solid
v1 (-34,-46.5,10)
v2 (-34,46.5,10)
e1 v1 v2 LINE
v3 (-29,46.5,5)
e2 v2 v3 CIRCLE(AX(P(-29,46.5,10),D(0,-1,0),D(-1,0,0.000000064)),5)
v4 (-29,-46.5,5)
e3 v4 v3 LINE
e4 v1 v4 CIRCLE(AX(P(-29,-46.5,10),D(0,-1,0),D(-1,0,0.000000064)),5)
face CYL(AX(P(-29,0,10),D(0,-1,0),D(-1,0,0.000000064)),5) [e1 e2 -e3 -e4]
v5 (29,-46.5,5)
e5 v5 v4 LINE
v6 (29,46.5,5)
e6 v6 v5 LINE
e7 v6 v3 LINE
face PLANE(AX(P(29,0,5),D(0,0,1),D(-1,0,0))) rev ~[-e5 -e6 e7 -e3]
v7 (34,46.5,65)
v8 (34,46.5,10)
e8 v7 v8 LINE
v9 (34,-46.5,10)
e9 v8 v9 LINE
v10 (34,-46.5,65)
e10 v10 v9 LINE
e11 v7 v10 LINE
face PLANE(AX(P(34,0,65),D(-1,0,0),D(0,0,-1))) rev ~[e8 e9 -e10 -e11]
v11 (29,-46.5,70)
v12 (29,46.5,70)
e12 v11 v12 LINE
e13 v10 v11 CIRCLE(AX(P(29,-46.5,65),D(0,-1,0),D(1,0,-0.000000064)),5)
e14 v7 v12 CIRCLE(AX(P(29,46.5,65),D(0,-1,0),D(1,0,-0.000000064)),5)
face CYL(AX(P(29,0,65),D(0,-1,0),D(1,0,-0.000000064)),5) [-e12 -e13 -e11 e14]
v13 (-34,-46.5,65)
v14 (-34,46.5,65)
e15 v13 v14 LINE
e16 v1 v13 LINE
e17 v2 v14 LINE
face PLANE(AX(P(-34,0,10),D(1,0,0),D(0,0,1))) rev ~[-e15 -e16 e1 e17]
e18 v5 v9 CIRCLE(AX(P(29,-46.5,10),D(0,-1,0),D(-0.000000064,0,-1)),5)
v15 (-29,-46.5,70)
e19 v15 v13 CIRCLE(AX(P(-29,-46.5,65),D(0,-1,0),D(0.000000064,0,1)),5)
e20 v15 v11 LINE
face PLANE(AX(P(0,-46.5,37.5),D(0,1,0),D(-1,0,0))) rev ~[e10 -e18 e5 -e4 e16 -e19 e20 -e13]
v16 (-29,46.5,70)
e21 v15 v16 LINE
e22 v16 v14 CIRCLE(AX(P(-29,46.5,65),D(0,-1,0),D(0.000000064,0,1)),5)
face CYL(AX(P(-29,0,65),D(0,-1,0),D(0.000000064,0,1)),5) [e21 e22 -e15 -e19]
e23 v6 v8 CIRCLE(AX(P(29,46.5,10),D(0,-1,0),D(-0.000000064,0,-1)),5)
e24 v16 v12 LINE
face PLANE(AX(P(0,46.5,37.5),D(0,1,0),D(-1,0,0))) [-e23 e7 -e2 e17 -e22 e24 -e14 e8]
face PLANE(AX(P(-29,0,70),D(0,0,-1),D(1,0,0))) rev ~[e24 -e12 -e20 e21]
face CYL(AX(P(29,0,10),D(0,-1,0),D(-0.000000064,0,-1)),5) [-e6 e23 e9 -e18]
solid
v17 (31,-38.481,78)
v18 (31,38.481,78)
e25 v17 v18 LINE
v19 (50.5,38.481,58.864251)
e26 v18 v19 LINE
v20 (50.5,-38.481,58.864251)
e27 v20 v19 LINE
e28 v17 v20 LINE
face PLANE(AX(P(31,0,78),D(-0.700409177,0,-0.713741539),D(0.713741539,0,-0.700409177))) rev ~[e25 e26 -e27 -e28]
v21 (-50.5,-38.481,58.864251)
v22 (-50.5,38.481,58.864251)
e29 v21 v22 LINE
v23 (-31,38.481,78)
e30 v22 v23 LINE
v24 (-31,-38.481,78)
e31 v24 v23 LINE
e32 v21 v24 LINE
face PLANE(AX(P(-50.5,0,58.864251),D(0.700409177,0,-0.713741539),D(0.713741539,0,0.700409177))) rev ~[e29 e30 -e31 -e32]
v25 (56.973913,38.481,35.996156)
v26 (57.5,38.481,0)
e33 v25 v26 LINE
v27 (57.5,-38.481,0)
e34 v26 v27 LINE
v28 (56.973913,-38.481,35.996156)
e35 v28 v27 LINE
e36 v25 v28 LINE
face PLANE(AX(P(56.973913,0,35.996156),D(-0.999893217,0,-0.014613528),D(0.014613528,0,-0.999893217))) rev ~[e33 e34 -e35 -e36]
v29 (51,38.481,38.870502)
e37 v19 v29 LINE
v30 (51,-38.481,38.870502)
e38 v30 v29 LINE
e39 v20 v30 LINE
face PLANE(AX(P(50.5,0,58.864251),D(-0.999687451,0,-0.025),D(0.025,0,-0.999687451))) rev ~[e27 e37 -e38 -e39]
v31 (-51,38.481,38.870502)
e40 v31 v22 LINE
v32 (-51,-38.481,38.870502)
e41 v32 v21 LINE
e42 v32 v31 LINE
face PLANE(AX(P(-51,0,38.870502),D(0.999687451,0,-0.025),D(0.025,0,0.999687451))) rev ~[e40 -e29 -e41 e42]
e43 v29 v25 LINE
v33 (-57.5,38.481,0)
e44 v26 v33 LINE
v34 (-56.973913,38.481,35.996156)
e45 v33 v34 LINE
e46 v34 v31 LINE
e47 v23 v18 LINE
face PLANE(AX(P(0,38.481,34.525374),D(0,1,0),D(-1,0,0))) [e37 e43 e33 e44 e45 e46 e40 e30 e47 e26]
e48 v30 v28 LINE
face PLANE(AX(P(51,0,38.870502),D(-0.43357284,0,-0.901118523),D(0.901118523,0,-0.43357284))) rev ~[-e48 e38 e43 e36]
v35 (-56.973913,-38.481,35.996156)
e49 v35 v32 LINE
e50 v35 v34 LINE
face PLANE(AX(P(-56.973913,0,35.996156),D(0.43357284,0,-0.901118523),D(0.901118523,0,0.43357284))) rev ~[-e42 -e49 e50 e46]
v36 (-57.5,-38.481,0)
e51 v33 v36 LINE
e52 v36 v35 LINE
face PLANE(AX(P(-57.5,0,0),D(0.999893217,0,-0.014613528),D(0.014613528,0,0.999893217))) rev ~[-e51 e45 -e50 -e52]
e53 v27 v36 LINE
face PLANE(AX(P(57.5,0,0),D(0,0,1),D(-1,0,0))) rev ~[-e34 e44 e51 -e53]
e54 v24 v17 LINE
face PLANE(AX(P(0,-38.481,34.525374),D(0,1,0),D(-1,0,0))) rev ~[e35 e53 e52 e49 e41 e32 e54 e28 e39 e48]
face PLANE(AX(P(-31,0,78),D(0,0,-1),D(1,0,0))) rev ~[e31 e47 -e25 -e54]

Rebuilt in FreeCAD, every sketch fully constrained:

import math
import FreeCAD as App
import Part
import Sketcher
from FreeCAD import Vector


def add_polygon(sketch, points):
    """Adds a closed chain of lines whose ends are joined by coincident constraints."""
    first, n = sketch.GeometryCount, len(points)
    for a, b in zip(points, points[1:] + points[:1]):
        sketch.addGeometry(Part.LineSegment(App.Vector(*a, 0), App.Vector(*b, 0)), False)
    for i in range(n):
        sketch.addConstraint(Sketcher.Constraint("Coincident", first + i, 2, first + (i + 1) % n, 1))

doc = App.newDocument("Part")
body = doc.addObject("PartDesign::Body", "Body")

# Sketch on XZ plane
sketch1 = body.newObject("Sketcher::SketchObject", "Sketch")
sketch1.AttachmentSupport = (doc.getObject("XZ_Plane"), [""])
sketch1.MapMode = "FlatFace"
add_polygon(sketch1, [(-57, 36), (-58, 0), (58, 0), (57, 36), (51, 39), (50, 59), (31, 78), (-31, 78), (-50, 59), (-51, 39)])  # lines 0-9
sketch1.addConstraint(Sketcher.Constraint("Horizontal", 1))
sketch1.addConstraint(Sketcher.Constraint("Horizontal", 6))
sketch1.addConstraint(Sketcher.Constraint("Symmetric", 0, 2, 1, 2, -1, 1))
sketch1.addConstraint(Sketcher.Constraint("Symmetric", 4, 2, 7, 2, -2))
sketch1.addConstraint(Sketcher.Constraint("Symmetric", 3, 2, 8, 2, -2))
sketch1.addConstraint(Sketcher.Constraint("Symmetric", 2, 2, 9, 2, -2))
sketch1.addConstraint(Sketcher.Constraint("Equal", 5, 7))
sketch1.addConstraint(Sketcher.Constraint("DistanceX", 1, 1, 1, 2, 115.0))
sketch1.addConstraint(Sketcher.Constraint("DistanceX", 6, 2, 6, 1, 62.0))
sketch1.addConstraint(Sketcher.Constraint("Distance", 0, 36.0))
sketch1.addConstraint(Sketcher.Constraint("Distance", 4, 20.0))
sketch1.addConstraint(Sketcher.Constraint("DistanceX", -1, 1, 3, 2, 51.0))
sketch1.addConstraint(Sketcher.Constraint("DistanceY", -1, 1, 5, 2, 78.0))
sketch1.addConstraint(Sketcher.Constraint("DistanceX", 4, 2, 1, 2, 7.0))
sketch1.addConstraint(Sketcher.Constraint("DistanceY", -1, 1, 4, 2, 58.864251))
sketch1.addConstraint(Sketcher.Constraint("Distance", 3, 6.629442))
pad1 = body.newObject("PartDesign::Pad", "Pad")
pad1.Profile = sketch1
pad1.Length = 76.962
pad1.Midplane = True
body2 = doc.addObject("PartDesign::Body", "Body001")

# Sketch on XZ plane
sketch2 = body2.newObject("Sketcher::SketchObject", "Sketch001")
sketch2.AttachmentSupport = (doc.getObject("XZ_Plane001"), [""])
sketch2.MapMode = "FlatFace"
sketch2.addGeometry(Part.LineSegment(Vector(-29, 5, 0), Vector(29, 5, 0)), False)
sketch2.addGeometry(Part.ArcOfCircle(Part.Circle(Vector(29, 10, 0), Vector(0, 0, 1), 5), math.radians(-90), math.radians(0)), False)
sketch2.addGeometry(Part.LineSegment(Vector(34, 10, 0), Vector(34, 65, 0)), False)
sketch2.addGeometry(Part.ArcOfCircle(Part.Circle(Vector(29, 65, 0), Vector(0, 0, 1), 5), math.radians(0), math.radians(90)), False)
sketch2.addGeometry(Part.LineSegment(Vector(29, 70, 0), Vector(-29, 70, 0)), False)
sketch2.addGeometry(Part.ArcOfCircle(Part.Circle(Vector(-29, 65, 0), Vector(0, 0, 1), 5), math.radians(90), math.radians(180)), False)
sketch2.addGeometry(Part.LineSegment(Vector(-34, 65, 0), Vector(-34, 10, 0)), False)
sketch2.addGeometry(Part.ArcOfCircle(Part.Circle(Vector(-29, 10, 0), Vector(0, 0, 1), 5), math.radians(180), math.radians(270)), False)
sketch2.addConstraint(Sketcher.Constraint("Tangent", 0, 2, 1, 1))
sketch2.addConstraint(Sketcher.Constraint("Tangent", 1, 2, 2, 1))
sketch2.addConstraint(Sketcher.Constraint("Tangent", 2, 2, 3, 1))
sketch2.addConstraint(Sketcher.Constraint("Tangent", 3, 2, 4, 1))
sketch2.addConstraint(Sketcher.Constraint("Tangent", 4, 2, 5, 1))
sketch2.addConstraint(Sketcher.Constraint("Tangent", 5, 2, 6, 1))
sketch2.addConstraint(Sketcher.Constraint("Tangent", 6, 2, 7, 1))
sketch2.addConstraint(Sketcher.Constraint("Tangent", 7, 2, 0, 1))
sketch2.addConstraint(Sketcher.Constraint("Horizontal", 0))
sketch2.addConstraint(Sketcher.Constraint("Vertical", 2))
sketch2.addConstraint(Sketcher.Constraint("Horizontal", 4))
sketch2.addConstraint(Sketcher.Constraint("Vertical", 6))
sketch2.addConstraint(Sketcher.Constraint("Equal", 1, 3))
sketch2.addConstraint(Sketcher.Constraint("Equal", 3, 5))
sketch2.addConstraint(Sketcher.Constraint("Equal", 5, 7))
sketch2.addConstraint(Sketcher.Constraint("Radius", 1, 5.0))
sketch2.addConstraint(Sketcher.Constraint("DistanceX", 0, 1, 0, 2, 58.0))
sketch2.addConstraint(Sketcher.Constraint("DistanceY", 2, 1, 2, 2, 55.0))
sketch2.addConstraint(Sketcher.Constraint("DistanceX", -1, 1, 1, 3, 29.0))
sketch2.addConstraint(Sketcher.Constraint("DistanceY", -1, 1, 1, 3, 10.0))
pad2 = body2.newObject("PartDesign::Pad", "Pad001")
pad2.Profile = sketch2
pad2.Length = 93
pad2.Midplane = True

doc.recompute()
